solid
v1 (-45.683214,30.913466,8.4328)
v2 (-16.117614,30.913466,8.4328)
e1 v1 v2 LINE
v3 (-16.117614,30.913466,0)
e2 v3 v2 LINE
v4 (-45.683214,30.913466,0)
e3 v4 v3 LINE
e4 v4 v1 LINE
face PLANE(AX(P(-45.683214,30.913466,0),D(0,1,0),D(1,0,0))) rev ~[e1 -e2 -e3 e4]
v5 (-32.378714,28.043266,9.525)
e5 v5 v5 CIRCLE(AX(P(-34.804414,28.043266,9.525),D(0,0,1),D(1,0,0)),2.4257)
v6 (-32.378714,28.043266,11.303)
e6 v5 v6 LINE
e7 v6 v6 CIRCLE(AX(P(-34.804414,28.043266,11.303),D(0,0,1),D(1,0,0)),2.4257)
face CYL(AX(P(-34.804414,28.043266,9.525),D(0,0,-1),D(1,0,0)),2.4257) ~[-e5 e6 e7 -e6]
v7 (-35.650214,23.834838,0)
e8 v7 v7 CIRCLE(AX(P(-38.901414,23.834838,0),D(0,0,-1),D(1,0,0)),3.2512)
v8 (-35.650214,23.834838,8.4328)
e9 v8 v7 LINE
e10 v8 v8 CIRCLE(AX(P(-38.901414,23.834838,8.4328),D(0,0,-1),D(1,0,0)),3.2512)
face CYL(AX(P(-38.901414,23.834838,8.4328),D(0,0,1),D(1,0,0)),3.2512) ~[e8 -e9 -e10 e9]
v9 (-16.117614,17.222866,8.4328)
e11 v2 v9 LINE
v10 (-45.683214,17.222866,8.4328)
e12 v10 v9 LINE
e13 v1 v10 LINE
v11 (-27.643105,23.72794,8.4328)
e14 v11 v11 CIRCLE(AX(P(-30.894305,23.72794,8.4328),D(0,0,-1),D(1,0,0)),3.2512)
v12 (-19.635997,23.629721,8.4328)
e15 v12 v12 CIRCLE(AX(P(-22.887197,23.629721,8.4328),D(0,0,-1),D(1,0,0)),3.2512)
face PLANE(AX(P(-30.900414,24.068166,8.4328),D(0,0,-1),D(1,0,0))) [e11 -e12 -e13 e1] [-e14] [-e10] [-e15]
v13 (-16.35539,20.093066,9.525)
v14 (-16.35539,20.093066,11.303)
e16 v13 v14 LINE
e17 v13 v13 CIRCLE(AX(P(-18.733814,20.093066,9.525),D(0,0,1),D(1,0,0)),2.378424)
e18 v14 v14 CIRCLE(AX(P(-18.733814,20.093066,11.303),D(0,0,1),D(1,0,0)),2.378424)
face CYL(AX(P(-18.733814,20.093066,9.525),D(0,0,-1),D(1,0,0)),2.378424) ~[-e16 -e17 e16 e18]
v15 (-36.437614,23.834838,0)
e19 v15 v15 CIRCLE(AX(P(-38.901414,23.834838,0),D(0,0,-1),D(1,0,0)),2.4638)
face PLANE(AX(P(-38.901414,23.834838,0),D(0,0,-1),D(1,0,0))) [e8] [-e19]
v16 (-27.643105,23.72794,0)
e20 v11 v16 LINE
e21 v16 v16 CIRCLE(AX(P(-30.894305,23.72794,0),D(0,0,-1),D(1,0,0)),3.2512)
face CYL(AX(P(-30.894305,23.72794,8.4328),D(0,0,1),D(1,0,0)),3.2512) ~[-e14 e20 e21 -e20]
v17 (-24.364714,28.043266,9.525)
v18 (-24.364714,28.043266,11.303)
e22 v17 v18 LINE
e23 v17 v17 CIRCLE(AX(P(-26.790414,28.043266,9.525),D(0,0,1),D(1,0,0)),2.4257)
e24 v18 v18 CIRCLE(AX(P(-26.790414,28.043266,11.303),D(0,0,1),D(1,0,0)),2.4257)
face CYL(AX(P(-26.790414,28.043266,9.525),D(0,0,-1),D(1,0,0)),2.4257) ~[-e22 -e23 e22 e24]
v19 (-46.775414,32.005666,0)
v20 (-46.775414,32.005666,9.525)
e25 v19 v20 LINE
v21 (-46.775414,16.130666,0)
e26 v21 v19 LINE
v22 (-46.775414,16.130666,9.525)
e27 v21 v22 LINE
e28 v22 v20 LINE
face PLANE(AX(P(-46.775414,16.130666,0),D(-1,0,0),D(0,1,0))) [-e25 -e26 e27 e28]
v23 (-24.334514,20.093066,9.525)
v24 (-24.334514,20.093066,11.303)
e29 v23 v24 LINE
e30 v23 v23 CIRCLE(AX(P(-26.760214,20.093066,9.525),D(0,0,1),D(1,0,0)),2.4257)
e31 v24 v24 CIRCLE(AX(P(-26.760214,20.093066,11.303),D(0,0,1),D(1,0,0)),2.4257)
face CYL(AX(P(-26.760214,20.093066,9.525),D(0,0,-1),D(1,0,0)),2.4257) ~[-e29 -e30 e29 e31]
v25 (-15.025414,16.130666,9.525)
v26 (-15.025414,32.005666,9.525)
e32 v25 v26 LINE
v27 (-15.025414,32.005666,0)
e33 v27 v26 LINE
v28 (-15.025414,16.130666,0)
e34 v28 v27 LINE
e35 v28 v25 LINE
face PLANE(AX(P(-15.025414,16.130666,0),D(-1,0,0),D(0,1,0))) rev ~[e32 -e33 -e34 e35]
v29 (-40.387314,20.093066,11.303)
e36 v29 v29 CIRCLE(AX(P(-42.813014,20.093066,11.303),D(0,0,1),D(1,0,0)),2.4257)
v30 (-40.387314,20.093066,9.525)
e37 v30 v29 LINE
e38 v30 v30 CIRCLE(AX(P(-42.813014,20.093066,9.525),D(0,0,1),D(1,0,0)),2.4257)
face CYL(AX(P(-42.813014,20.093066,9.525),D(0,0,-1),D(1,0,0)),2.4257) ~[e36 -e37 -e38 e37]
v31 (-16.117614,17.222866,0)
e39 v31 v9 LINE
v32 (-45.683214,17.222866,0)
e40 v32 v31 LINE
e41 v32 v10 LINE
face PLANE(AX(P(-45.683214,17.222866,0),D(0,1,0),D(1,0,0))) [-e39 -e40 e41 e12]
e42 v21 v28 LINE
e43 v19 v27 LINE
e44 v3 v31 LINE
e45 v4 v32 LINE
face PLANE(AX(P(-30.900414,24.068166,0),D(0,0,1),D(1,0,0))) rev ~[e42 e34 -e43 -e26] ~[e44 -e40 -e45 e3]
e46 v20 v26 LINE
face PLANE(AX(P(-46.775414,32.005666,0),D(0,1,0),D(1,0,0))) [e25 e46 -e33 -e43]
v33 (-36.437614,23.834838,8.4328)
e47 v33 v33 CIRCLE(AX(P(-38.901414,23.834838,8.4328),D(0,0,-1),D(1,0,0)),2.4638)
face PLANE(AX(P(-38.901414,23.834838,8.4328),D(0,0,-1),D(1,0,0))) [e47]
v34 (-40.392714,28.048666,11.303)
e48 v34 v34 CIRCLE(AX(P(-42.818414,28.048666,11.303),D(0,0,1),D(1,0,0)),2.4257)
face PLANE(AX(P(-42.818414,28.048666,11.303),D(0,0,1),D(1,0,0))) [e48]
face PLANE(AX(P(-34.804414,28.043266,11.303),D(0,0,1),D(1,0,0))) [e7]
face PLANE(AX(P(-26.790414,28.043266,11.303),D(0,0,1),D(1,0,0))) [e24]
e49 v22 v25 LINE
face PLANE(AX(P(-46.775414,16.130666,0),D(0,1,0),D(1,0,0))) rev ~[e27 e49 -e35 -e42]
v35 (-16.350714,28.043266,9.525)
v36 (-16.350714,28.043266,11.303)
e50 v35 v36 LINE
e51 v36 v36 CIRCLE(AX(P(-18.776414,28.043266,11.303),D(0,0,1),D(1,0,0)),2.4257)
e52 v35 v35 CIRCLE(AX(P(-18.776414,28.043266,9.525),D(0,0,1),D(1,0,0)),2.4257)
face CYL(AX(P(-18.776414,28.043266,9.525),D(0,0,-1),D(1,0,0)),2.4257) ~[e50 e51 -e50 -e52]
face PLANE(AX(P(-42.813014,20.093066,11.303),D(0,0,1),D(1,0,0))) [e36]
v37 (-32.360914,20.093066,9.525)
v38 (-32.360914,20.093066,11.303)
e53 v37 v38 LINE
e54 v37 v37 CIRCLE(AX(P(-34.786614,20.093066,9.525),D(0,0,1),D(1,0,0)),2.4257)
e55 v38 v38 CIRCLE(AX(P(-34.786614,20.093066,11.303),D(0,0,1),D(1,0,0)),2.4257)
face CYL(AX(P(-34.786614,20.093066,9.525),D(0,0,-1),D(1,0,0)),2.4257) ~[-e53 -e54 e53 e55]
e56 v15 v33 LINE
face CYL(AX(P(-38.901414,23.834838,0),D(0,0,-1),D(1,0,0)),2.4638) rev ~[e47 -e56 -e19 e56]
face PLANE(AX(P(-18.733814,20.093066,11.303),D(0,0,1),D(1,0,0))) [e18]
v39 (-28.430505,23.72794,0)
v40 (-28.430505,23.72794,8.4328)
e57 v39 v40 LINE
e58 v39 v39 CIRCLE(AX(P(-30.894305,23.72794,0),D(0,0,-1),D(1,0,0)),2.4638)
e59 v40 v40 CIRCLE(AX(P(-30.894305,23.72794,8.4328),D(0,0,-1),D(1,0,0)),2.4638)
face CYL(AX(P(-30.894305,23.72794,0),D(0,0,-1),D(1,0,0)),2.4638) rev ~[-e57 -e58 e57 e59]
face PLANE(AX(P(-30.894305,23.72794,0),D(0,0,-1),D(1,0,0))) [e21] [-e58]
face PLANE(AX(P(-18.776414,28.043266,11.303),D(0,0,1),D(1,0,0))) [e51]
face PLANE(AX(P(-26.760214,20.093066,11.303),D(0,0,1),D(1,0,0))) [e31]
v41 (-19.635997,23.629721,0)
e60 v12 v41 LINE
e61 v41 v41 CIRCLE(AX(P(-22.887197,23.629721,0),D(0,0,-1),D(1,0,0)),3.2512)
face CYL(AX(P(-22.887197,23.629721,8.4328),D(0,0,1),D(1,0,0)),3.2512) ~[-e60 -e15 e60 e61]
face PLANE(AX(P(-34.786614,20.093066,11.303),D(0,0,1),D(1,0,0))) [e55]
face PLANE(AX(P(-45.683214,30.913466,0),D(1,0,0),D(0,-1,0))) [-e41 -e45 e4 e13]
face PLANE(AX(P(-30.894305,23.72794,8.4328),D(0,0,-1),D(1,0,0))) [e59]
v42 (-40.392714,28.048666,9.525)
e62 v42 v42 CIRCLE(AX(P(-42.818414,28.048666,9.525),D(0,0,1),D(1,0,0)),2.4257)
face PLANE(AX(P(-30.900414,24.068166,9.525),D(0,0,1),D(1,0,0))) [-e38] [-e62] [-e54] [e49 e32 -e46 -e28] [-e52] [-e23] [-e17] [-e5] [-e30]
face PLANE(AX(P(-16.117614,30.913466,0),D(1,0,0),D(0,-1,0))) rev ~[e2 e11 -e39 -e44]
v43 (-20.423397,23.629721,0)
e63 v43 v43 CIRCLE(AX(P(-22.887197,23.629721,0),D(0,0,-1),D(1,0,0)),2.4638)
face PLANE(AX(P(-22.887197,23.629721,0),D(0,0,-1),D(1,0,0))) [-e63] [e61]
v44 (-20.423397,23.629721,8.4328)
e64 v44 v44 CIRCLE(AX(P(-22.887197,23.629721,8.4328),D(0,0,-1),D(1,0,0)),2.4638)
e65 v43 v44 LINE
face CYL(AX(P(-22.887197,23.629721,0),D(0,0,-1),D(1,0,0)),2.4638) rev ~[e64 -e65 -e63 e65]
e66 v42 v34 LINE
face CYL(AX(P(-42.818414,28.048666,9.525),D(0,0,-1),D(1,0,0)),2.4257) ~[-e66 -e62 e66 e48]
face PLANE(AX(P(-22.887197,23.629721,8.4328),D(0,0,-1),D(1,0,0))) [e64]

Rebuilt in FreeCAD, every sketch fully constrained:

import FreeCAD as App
import Part
import Sketcher
from FreeCAD import Vector
Q = App.Units.Quantity


def add_polygon(sketch, points):
    """Adds a closed chain of lines whose ends are joined by coincident constraints."""
    first, n = sketch.GeometryCount, len(points)
    for a, b in zip(points, points[1:] + points[:1]):
        sketch.addGeometry(Part.LineSegment(App.Vector(*a, 0), App.Vector(*b, 0)), False)
    for i in range(n):
        sketch.addConstraint(Sketcher.Constraint("Coincident", first + i, 2, first + (i + 1) % n, 1))

doc = App.newDocument("Part")
body = doc.addObject("PartDesign::Body", "Body")

# Sketch on XY plane
sketch1 = body.newObject("Sketcher::SketchObject", "Sketch")
sketch1.AttachmentSupport = (doc.getObject("XY_Plane"), [""])
sketch1.MapMode = "FlatFace"
add_polygon(sketch1, [(-47, 32), (-47, 16), (-15, 16), (-15, 32)])  # lines 0-3
sketch1.addConstraint([
    Sketcher.Constraint("Vertical", 0),
    Sketcher.Constraint("Horizontal", 1),
    Sketcher.Constraint("Vertical", 2),
    Sketcher.Constraint("Horizontal", 3),
    Sketcher.Constraint("DistanceX", 1, 1, 1, 2, Q("1.25 in")),
    Sketcher.Constraint("DistanceY", 0, 2, 0, 1, Q("0.625 in")),
    Sketcher.Constraint("DistanceX", 0, 2, -1, 1, Q("46.775414 mm")),
    Sketcher.Constraint("DistanceY", -1, 1, 0, 2, Q("16.130666 mm")),
])
pad1 = body.newObject("PartDesign::Pad", "Pad")
pad1.Profile = sketch1
pad1.Length = Q("0.375 in")

# Sketch on XY plane
sketch2 = body.newObject("Sketcher::SketchObject", "Sketch001")
sketch2.AttachmentSupport = (doc.getObject("XY_Plane"), [""])
sketch2.MapMode = "FlatFace"
sketch2.AttachmentOffset = App.Placement(Vector(0, 0, 0.375 * 25.4), App.Rotation())
sketch2.addGeometry(Part.Circle(Vector(-42.8, 28, 0), Vector(0, 0, 1), 2.4), False)
sketch2.addConstraint([
    Sketcher.Constraint("Diameter", 0, Q("0.191 in")),
    Sketcher.Constraint("DistanceX", 0, 3, -1, 1, Q("42.818414 mm")),
    Sketcher.Constraint("DistanceY", -1, 1, 0, 3, Q("28.048666 mm")),
])
pad2 = body.newObject("PartDesign::Pad", "Pad001")
pad2.Profile = sketch2
pad2.Length = Q("0.07 in")

# Sketch on XY plane
sketch3 = body.newObject("Sketcher::SketchObject", "Sketch002")
sketch3.AttachmentSupport = (doc.getObject("XY_Plane"), [""])
sketch3.MapMode = "FlatFace"
sketch3.AttachmentOffset = App.Placement(Vector(0, 0, 0.375 * 25.4), App.Rotation())
sketch3.addGeometry(Part.Circle(Vector(-34.8, 28, 0), Vector(0, 0, 1), 2.4), False)
sketch3.addConstraint([
    Sketcher.Constraint("Diameter", 0, Q("0.191 in")),
    Sketcher.Constraint("DistanceX", 0, 3, -1, 1, Q("34.804414 mm")),
    Sketcher.Constraint("DistanceY", -1, 1, 0, 3, Q("28.043266 mm")),
])
pad3 = body.newObject("PartDesign::Pad", "Pad002")
pad3.Profile = sketch3
pad3.Length = Q("0.07 in")

# Sketch on XY plane
sketch4 = body.newObject("Sketcher::SketchObject", "Sketch003")
sketch4.AttachmentSupport = (doc.getObject("XY_Plane"), [""])
sketch4.MapMode = "FlatFace"
sketch4.AttachmentOffset = App.Placement(Vector(0, 0, 0.375 * 25.4), App.Rotation())
sketch4.addGeometry(Part.Circle(Vector(-26.8, 28, 0), Vector(0, 0, 1), 2.4), False)
sketch4.addConstraint([
    Sketcher.Constraint("Diameter", 0, Q("0.191 in")),
    Sketcher.Constraint("DistanceX", 0, 3, -1, 1, Q("26.790414 mm")),
    Sketcher.Constraint("DistanceY", -1, 1, 0, 3, Q("28.043266 mm")),
])
pad4 = body.newObject("PartDesign::Pad", "Pad003")
pad4.Profile = sketch4
pad4.Length = Q("0.07 in")

# Sketch on XY plane
sketch5 = body.newObject("Sketcher::SketchObject", "Sketch004")
sketch5.AttachmentSupport = (doc.getObject("XY_Plane"), [""])
sketch5.MapMode = "FlatFace"
sketch5.AttachmentOffset = App.Placement(Vector(0, 0, 0.375 * 25.4), App.Rotation())
sketch5.addGeometry(Part.Circle(Vector(-18.8, 28, 0), Vector(0, 0, 1), 2.4), False)
sketch5.addConstraint([
    Sketcher.Constraint("Diameter", 0, Q("0.191 in")),
    Sketcher.Constraint("DistanceX", 0, 3, -1, 1, Q("18.776414 mm")),
    Sketcher.Constraint("DistanceY", -1, 1, 0, 3, Q("28.043266 mm")),
])
pad5 = body.newObject("PartDesign::Pad", "Pad004")
pad5.Profile = sketch5
pad5.Length = Q("0.07 in")

# Sketch on XY plane
sketch6 = body.newObject("Sketcher::SketchObject", "Sketch005")
sketch6.AttachmentSupport = (doc.getObject("XY_Plane"), [""])
sketch6.MapMode = "FlatFace"
sketch6.AttachmentOffset = App.Placement(Vector(0, 0, 0.375 * 25.4), App.Rotation())
sketch6.addGeometry(Part.Circle(Vector(-42.8, 20.1, 0), Vector(0, 0, 1), 2.4), False)
sketch6.addConstraint([
    Sketcher.Constraint("Diameter", 0, Q("0.191 in")),
    Sketcher.Constraint("DistanceX", 0, 3, -1, 1, Q("42.813014 mm")),
    Sketcher.Constraint("DistanceY", -1, 1, 0, 3, Q("20.093066 mm")),
])
pad6 = body.newObject("PartDesign::Pad", "Pad005")
pad6.Profile = sketch6
pad6.Length = Q("0.07 in")

# Sketch on XY plane
sketch7 = body.newObject("Sketcher::SketchObject", "Sketch006")
sketch7.AttachmentSupport = (doc.getObject("XY_Plane"), [""])
sketch7.MapMode = "FlatFace"
sketch7.AttachmentOffset = App.Placement(Vector(0, 0, 0.375 * 25.4), App.Rotation())
sketch7.addGeometry(Part.Circle(Vector(-34.8, 20.1, 0), Vector(0, 0, 1), 2.4), False)
sketch7.addConstraint([
    Sketcher.Constraint("Diameter", 0, Q("0.191 in")),
    Sketcher.Constraint("DistanceX", 0, 3, -1, 1, Q("34.786614 mm")),
    Sketcher.Constraint("DistanceY", -1, 1, 0, 3, Q("20.093066 mm")),
])
pad7 = body.newObject("PartDesign::Pad", "Pad006")
pad7.Profile = sketch7
pad7.Length = Q("0.07 in")

# Sketch on XY plane
sketch8 = body.newObject("Sketcher::SketchObject", "Sketch007")
sketch8.AttachmentSupport = (doc.getObject("XY_Plane"), [""])
sketch8.MapMode = "FlatFace"
sketch8.AttachmentOffset = App.Placement(Vector(0, 0, 0.375 * 25.4), App.Rotation())
sketch8.addGeometry(Part.Circle(Vector(-26.8, 20.1, 0), Vector(0, 0, 1), 2.4), False)
sketch8.addConstraint([
    Sketcher.Constraint("Diameter", 0, Q("0.191 in")),
    Sketcher.Constraint("DistanceX", 0, 3, -1, 1, Q("26.760214 mm")),
    Sketcher.Constraint("DistanceY", -1, 1, 0, 3, Q("20.093066 mm")),
])
pad8 = body.newObject("PartDesign::Pad", "Pad007")
pad8.Profile = sketch8
pad8.Length = Q("0.07 in")

# Sketch on XY plane
sketch9 = body.newObject("Sketcher::SketchObject", "Sketch008")
sketch9.AttachmentSupport = (doc.getObject("XY_Plane"), [""])
sketch9.MapMode = "FlatFace"
sketch9.AttachmentOffset = App.Placement(Vector(0, 0, 0.375 * 25.4), App.Rotation())
sketch9.addGeometry(Part.Circle(Vector(-18.7, 20.1, 0), Vector(0, 0, 1), 2.4), False)
sketch9.addConstraint([
    Sketcher.Constraint("Diameter", 0, Q("4.756848 mm")),
    Sketcher.Constraint("DistanceX", 0, 3, -1, 1, Q("18.733814 mm")),
    Sketcher.Constraint("DistanceY", -1, 1, 0, 3, Q("20.093066 mm")),
])
pad9 = body.newObject("PartDesign::Pad", "Pad008")
pad9.Profile = sketch9
pad9.Length = Q("0.07 in")

# Sketch on XY plane
sketch10 = body.newObject("Sketcher::SketchObject", "Sketch009")
sketch10.AttachmentSupport = (doc.getObject("XY_Plane"), [""])
sketch10.MapMode = "FlatFace"
add_polygon(sketch10, [(-46, 17), (-46, 31), (-16, 31), (-16, 17)])  # lines 0-3
sketch10.addConstraint([
    Sketcher.Constraint("Vertical", 0),
    Sketcher.Constraint("Horizontal", 1),
    Sketcher.Constraint("Vertical", 2),
    Sketcher.Constraint("Horizontal", 3),
    Sketcher.Constraint("DistanceX", 1, 1, 1, 2, Q("1.164 in")),
    Sketcher.Constraint("DistanceY", 0, 1, 0, 2, Q("0.539 in")),
    Sketcher.Constraint("DistanceX", 0, 2, -1, 1, Q("45.683214 mm")),
    Sketcher.Constraint("DistanceY", -1, 1, 0, 2, Q("30.913466 mm")),
])
pocket1 = body.newObject("PartDesign::Pocket", "Pocket")
pocket1.Profile = sketch10
pocket1.Length = Q("0.332 in")
pocket1.Reversed = True

# Sketch on XY plane
sketch11 = body.newObject("Sketcher::SketchObject", "Sketch010")
sketch11.AttachmentSupport = (doc.getObject("XY_Plane"), [""])
sketch11.MapMode = "FlatFace"
sketch11.AttachmentOffset = App.Placement(Vector(0, 0, 0.332 * 25.4), App.Rotation())
sketch11.addGeometry([
    Part.Circle(Vector(-38.9, 23.8, 0), Vector(0, 0, 1), 3.3),
    Part.Circle(Vector(-30.9, 23.7, 0), Vector(0, 0, 1), 3.3),
    Part.Circle(Vector(-22.9, 23.6, 0), Vector(0, 0, 1), 3.3),
], False)
sketch11.addConstraint([
    Sketcher.Constraint("Equal", 0, 1),
    Sketcher.Constraint("Equal", 1, 2),
    Sketcher.Constraint("Diameter", 0, Q("0.256 in")),
    Sketcher.Constraint("DistanceY", 1, 3, 0, 3, Q("0.106898 mm")),
    Sketcher.Constraint("DistanceY", -1, 1, 0, 3, Q("23.834838 mm")),
    Sketcher.Constraint("DistanceY", -1, 1, 2, 3, Q("23.629721 mm")),
    Sketcher.Constraint("DistanceX", 0, 3, 1, 3, Q("8.007109 mm")),
    Sketcher.Constraint("DistanceX", 0, 3, -1, 1, Q("38.901414 mm")),
    Sketcher.Constraint("DistanceX", 2, 3, -1, 1, Q("22.887197 mm")),
])
pad10 = body.newObject("PartDesign::Pad", "Pad009")
pad10.Profile = sketch11
pad10.Length = Q("0.332 in")
pad10.Reversed = True

# Sketch on XY plane
sketch12 = body.newObject("Sketcher::SketchObject", "Sketch011")
sketch12.AttachmentSupport = (doc.getObject("XY_Plane"), [""])
sketch12.MapMode = "FlatFace"
sketch12.addGeometry([
    Part.Circle(Vector(-38.9, 23.8, 0), Vector(0, 0, 1), 2.5),
    Part.Circle(Vector(-30.9, 23.7, 0), Vector(0, 0, 1), 2.5),
    Part.Circle(Vector(-22.9, 23.6, 0), Vector(0, 0, 1), 2.5),
], False)
sketch12.addConstraint([
    Sketcher.Constraint("Equal", 0, 1),
    Sketcher.Constraint("Equal", 1, 2),
    Sketcher.Constraint("Diameter", 0, Q("0.194 in")),
    Sketcher.Constraint("DistanceY", 1, 3, 0, 3, Q("0.106898 mm")),
    Sketcher.Constraint("DistanceY", -1, 1, 0, 3, Q("23.834838 mm")),
    Sketcher.Constraint("DistanceY", -1, 1, 2, 3, Q("23.629721 mm")),
    Sketcher.Constraint("DistanceX", 0, 3, 1, 3, Q("8.007109 mm")),
    Sketcher.Constraint("DistanceX", 0, 3, -1, 1, Q("38.901414 mm")),
    Sketcher.Constraint("DistanceX", 2, 3, -1, 1, Q("22.887197 mm")),
])
pocket2 = body.newObject("PartDesign::Pocket", "Pocket001")
pocket2.Profile = sketch12
pocket2.Length = Q("0.332 in")
pocket2.Reversed = True

doc.recompute()
